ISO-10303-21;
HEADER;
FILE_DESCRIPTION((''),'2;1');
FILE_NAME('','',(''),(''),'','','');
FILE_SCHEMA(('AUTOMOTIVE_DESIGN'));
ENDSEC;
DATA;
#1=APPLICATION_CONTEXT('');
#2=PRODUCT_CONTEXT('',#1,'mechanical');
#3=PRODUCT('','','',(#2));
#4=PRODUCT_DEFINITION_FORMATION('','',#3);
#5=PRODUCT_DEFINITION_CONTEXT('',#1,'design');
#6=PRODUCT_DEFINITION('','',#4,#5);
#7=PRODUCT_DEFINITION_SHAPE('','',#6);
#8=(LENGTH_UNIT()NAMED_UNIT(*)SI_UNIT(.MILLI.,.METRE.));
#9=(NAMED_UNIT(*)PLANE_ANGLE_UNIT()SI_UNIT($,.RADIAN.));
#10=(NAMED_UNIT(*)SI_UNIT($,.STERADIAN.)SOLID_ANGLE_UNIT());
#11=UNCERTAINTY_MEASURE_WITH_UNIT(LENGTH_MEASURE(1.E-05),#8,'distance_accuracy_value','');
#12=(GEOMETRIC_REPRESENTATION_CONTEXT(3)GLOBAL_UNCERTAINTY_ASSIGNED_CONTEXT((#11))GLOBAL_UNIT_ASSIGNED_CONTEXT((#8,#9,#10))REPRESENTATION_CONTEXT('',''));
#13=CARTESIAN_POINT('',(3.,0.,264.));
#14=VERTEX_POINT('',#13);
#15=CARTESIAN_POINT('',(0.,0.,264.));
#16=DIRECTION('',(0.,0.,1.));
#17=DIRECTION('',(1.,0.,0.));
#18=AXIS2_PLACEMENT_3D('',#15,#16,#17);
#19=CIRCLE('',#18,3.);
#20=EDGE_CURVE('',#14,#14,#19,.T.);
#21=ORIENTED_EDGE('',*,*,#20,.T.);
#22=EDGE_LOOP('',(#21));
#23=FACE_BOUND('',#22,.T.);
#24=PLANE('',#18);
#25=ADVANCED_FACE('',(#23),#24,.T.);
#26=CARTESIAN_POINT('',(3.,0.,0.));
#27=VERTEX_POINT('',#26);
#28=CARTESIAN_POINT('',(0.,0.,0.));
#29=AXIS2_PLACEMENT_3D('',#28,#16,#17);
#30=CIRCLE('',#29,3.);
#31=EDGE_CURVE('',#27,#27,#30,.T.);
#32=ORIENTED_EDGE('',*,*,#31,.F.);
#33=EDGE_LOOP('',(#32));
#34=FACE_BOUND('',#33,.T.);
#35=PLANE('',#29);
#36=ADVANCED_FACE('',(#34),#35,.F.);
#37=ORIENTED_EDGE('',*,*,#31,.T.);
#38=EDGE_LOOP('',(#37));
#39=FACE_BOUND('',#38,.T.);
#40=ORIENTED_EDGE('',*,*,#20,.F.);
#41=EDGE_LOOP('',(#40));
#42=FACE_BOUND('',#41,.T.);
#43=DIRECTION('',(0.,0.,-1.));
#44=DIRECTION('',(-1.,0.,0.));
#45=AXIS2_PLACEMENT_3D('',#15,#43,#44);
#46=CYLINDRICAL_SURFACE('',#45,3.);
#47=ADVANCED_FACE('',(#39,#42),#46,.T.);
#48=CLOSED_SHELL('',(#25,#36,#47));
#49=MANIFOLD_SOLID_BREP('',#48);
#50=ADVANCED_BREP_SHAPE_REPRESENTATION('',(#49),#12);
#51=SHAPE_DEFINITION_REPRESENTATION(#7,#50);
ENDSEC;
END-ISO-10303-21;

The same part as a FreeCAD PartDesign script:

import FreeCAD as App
import Part
import Sketcher
from FreeCAD import Vector

doc = App.newDocument("Part")
body = doc.addObject("PartDesign::Body", "Body")

# Sketch on XY plane
sketch1 = body.newObject("Sketcher::SketchObject", "Sketch")
sketch1.AttachmentSupport = (doc.getObject("XY_Plane"), [""])
sketch1.MapMode = "FlatFace"
sketch1.addGeometry(Part.Circle(Vector(0, 0, 0), Vector(0, 0, 1), 3), False)
sketch1.addConstraint([
    Sketcher.Constraint("Coincident", 0, 3, -1, 1),
    Sketcher.Constraint("Diameter", 0, 6.0),
])
pad1 = body.newObject("PartDesign::Pad", "Pad")
pad1.Profile = sketch1
pad1.Length = 264

doc.recompute()
